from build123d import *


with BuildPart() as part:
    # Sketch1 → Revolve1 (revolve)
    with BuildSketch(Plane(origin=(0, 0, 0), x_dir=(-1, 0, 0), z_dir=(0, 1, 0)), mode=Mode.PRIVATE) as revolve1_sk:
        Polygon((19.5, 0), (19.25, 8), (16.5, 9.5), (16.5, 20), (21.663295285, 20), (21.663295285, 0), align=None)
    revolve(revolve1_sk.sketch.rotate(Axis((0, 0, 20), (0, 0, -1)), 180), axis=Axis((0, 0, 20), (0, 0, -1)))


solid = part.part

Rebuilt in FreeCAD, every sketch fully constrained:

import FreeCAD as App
import Part
import Sketcher

V = App.Vector
Q = App.Units.Quantity

doc = App.newDocument("Part")
body = doc.addObject("PartDesign::Body", "Body")

# Sketch on XZ plane
sketch1 = body.newObject("Sketcher::SketchObject", "Sketch")
sketch1.AttachmentSupport = (doc.getObject("XZ_Plane"), [""])
sketch1.MapMode = "FlatFace"
sketch1.addGeometry(Part.LineSegment(V(-19.25, 8, 0), V(-19.5, 0, 0)), False)
sketch1.addGeometry(Part.LineSegment(V(-19.5, 0, 0), V(-21.663295, 0, 0)), False)
sketch1.addGeometry(Part.LineSegment(V(-21.663295, 0, 0), V(-21.663295, 20, 0)), False)
sketch1.addGeometry(Part.LineSegment(V(-21.663295, 20, 0), V(-16.5, 20, 0)), False)
sketch1.addGeometry(Part.LineSegment(V(-16.5, 20, 0), V(-16.5, 9.5, 0)), False)
sketch1.addGeometry(Part.LineSegment(V(-16.5, 9.5, 0), V(-19.25, 8, 0)), False)
sketch1.addConstraint(Sketcher.Constraint("Coincident", 0, 2, 1, 1))
sketch1.addConstraint(Sketcher.Constraint("Coincident", 1, 2, 2, 1))
sketch1.addConstraint(Sketcher.Constraint("Coincident", 2, 2, 3, 1))
sketch1.addConstraint(Sketcher.Constraint("Coincident", 3, 2, 4, 1))
sketch1.addConstraint(Sketcher.Constraint("Coincident", 4, 2, 5, 1))
sketch1.addConstraint(Sketcher.Constraint("Coincident", 5, 2, 0, 1))
sketch1.addConstraint(Sketcher.Constraint("Horizontal", 1))
sketch1.addConstraint(Sketcher.Constraint("Vertical", 2))
sketch1.addConstraint(Sketcher.Constraint("Horizontal", 3))
sketch1.addConstraint(Sketcher.Constraint("Vertical", 4))
sketch1.addConstraint(Sketcher.Constraint("PointOnObject", 0, 2, -1))
sketch1.addConstraint(Sketcher.Constraint("DistanceY", 2, 1, 2, 2, Q("20 mm")))
sketch1.addConstraint(Sketcher.Constraint("DistanceY", 4, 2, 4, 1, Q("10.5 mm")))
sketch1.addConstraint(Sketcher.Constraint("DistanceY", -1, 1, 5, 2, Q("8 mm")))
sketch1.addConstraint(Sketcher.Constraint("DistanceX", 0, 2, 3, 2, Q("3 mm")))
sketch1.addConstraint(Sketcher.Constraint("DistanceX", 0, 2, -1, 1, Q("19.5 mm")))
sketch1.addConstraint(Sketcher.Constraint("DistanceX", 5, 2, -1, 1, Q("19.25 mm")))
sketch1.addConstraint(Sketcher.Constraint("DistanceX", 1, 2, 1, 1, Q("2.163295 mm")))
revolution = body.newObject("PartDesign::Revolution", "Revolution")
revolution.Profile = sketch1
revolution.ReferenceAxis = (sketch1, ["V_Axis"])
revolution.Angle = 360

doc.recompute()
